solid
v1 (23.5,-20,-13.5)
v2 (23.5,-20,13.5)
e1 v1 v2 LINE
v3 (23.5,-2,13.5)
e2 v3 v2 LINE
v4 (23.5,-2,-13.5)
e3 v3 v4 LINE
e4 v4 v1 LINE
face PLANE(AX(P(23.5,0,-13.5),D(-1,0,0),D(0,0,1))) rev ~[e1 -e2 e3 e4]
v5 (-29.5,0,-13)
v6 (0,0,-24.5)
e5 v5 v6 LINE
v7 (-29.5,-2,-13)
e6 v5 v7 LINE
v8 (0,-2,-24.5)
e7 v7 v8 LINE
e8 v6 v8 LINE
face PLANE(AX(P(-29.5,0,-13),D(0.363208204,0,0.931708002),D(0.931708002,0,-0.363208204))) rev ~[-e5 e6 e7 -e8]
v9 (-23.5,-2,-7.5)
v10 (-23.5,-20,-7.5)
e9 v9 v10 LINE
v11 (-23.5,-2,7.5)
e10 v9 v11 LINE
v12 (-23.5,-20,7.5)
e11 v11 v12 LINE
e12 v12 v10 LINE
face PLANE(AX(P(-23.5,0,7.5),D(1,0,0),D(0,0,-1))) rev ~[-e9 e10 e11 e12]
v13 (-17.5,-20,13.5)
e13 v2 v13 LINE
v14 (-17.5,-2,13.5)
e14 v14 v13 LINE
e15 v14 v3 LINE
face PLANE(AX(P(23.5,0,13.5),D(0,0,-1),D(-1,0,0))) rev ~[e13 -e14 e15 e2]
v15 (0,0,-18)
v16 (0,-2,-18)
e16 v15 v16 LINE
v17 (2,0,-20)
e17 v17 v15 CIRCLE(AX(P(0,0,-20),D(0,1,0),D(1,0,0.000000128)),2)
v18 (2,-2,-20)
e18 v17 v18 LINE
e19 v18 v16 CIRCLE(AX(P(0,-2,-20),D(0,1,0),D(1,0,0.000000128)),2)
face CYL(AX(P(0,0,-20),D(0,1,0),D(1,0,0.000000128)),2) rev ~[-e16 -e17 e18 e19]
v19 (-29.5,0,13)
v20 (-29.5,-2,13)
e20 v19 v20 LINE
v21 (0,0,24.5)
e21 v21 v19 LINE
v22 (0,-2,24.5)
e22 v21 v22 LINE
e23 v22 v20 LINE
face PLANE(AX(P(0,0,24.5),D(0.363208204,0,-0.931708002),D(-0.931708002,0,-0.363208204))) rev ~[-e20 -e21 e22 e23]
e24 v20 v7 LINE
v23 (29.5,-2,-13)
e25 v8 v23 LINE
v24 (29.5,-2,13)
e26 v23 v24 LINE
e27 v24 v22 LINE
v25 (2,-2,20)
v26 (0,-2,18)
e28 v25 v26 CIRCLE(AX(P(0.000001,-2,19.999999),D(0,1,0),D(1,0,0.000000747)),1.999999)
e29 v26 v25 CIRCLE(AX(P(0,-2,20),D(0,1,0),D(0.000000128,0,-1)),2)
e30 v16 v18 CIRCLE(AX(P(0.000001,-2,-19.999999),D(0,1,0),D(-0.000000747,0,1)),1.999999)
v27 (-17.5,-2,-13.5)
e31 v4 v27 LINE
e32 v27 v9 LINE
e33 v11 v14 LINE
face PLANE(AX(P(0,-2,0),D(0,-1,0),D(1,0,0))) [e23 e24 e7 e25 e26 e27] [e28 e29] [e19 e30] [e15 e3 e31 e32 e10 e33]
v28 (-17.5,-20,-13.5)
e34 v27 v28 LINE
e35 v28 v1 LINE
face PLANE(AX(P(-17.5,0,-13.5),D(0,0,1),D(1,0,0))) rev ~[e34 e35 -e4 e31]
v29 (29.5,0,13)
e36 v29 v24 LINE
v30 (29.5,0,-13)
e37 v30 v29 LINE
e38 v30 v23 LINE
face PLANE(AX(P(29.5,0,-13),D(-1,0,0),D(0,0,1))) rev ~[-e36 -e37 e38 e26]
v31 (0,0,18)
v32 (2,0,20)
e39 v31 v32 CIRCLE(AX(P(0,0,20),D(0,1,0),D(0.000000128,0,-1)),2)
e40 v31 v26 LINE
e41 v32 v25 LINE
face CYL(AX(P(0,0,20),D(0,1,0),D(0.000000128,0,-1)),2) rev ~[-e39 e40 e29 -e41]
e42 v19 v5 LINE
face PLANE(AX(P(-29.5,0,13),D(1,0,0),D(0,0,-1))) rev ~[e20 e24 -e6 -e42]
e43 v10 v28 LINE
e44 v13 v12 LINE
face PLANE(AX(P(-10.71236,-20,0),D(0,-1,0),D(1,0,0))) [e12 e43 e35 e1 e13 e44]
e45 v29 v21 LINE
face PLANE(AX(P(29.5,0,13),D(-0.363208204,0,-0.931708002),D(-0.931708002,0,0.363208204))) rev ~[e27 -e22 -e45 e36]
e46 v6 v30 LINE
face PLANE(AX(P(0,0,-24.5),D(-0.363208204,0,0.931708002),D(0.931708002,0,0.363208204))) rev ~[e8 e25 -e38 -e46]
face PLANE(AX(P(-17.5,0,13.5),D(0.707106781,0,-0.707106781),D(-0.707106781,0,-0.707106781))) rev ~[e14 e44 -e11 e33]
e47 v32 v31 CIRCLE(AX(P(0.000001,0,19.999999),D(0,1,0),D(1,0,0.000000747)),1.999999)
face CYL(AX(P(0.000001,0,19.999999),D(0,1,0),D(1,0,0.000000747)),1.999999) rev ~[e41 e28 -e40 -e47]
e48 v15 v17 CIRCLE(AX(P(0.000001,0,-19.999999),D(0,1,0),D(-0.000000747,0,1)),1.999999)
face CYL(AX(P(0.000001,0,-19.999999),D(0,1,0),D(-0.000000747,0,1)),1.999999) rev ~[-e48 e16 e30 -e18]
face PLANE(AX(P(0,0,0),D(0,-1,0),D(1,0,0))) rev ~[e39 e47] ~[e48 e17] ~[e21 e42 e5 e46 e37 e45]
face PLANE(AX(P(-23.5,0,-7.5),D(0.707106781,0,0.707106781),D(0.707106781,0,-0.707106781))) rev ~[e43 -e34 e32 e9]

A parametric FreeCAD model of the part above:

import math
import FreeCAD as App
import Part
import Sketcher

doc = App.newDocument("Part")
body = doc.addObject("PartDesign::Body", "Body")

# Sketch on XZ plane
sketch1 = body.newObject("Sketcher::SketchObject", "Sketch")
sketch1.AttachmentSupport = (doc.getObject("XZ_Plane"), [""])
sketch1.MapMode = "FlatFace"
sketch1.addGeometry([
    Part.LineSegment(App.Vector(0, 24.5, 0), App.Vector(-29.5, 13, 0)),  # 0
    Part.LineSegment(App.Vector(-29.5, 13, 0), App.Vector(-29.5, -13, 0)),  # 1
    Part.LineSegment(App.Vector(-29.5, -13, 0), App.Vector(0, -24.5, 0)),  # 2
    Part.LineSegment(App.Vector(0, -24.5, 0), App.Vector(29.5, -13, 0)),  # 3
    Part.LineSegment(App.Vector(29.5, -13, 0), App.Vector(29.5, 13, 0)),  # 4
    Part.LineSegment(App.Vector(29.5, 13, 0), App.Vector(0, 24.5, 0)),  # 5
    Part.ArcOfCircle(Part.Circle(App.Vector(0, -20, 0), App.Vector(0, 0, 1), 2), math.radians(0), math.radians(90)),  # 6
    Part.ArcOfCircle(Part.Circle(App.Vector(0, -20, 0), App.Vector(0, 0, 1), 2), math.radians(90), math.radians(360)),  # 7
    Part.ArcOfCircle(Part.Circle(App.Vector(0, 20, 0), App.Vector(0, 0, 1), 2), math.radians(-90), math.radians(0)),  # 8
    Part.ArcOfCircle(Part.Circle(App.Vector(0, 20, 0), App.Vector(0, 0, 1), 2), math.radians(0), math.radians(270)),  # 9
    Part.LineSegment(App.Vector(-23.5, 7.5, 0), App.Vector(-17.5, 13.5, 0)),  # 10
    Part.LineSegment(App.Vector(-17.5, 13.5, 0), App.Vector(23.5, 13.5, 0)),  # 11
    Part.LineSegment(App.Vector(23.5, 13.5, 0), App.Vector(23.5, -13.5, 0)),  # 12
    Part.LineSegment(App.Vector(23.5, -13.5, 0), App.Vector(-17.5, -13.5, 0)),  # 13
    Part.LineSegment(App.Vector(-17.5, -13.5, 0), App.Vector(-23.5, -7.5, 0)),  # 14
    Part.LineSegment(App.Vector(-23.5, -7.5, 0), App.Vector(-23.5, 7.5, 0)),  # 15
], False)
sketch1.addConstraint([
    Sketcher.Constraint("Coincident", 0, 2, 1, 1),
    Sketcher.Constraint("Coincident", 1, 2, 2, 1),
    Sketcher.Constraint("Coincident", 2, 2, 3, 1),
    Sketcher.Constraint("Coincident", 3, 2, 4, 1),
    Sketcher.Constraint("Coincident", 4, 2, 5, 1),
    Sketcher.Constraint("Coincident", 5, 2, 0, 1),
    Sketcher.Constraint("Tangent", 6, 1, 7, 2),
    Sketcher.Constraint("Coincident", 7, 1, 6, 2),
    Sketcher.Constraint("Tangent", 8, 1, 9, 2),
    Sketcher.Constraint("Coincident", 9, 1, 8, 2),
    Sketcher.Constraint("Coincident", 10, 2, 11, 1),
    Sketcher.Constraint("Coincident", 11, 2, 12, 1),
    Sketcher.Constraint("Coincident", 12, 2, 13, 1),
    Sketcher.Constraint("Coincident", 13, 2, 14, 1),
    Sketcher.Constraint("Coincident", 14, 2, 15, 1),
    Sketcher.Constraint("Coincident", 15, 2, 10, 1),
    Sketcher.Constraint("Vertical", 1),
    Sketcher.Constraint("Vertical", 4),
    Sketcher.Constraint("Horizontal", 11),
    Sketcher.Constraint("Vertical", 12),
    Sketcher.Constraint("Horizontal", 13),
    Sketcher.Constraint("Vertical", 15),
    Sketcher.Constraint("Equal", 7, 8),
    Sketcher.Constraint("Symmetric", 6, 3, 8, 3, -1, 1),
    Sketcher.Constraint("Symmetric", 0, 2, 3, 2, -1, 1),
    Sketcher.Constraint("Symmetric", 2, 2, 5, 2, -1, 1),
    Sketcher.Constraint("Symmetric", 6, 1, 9, 1, -1),
    Sketcher.Constraint("Symmetric", 10, 2, 13, 2, -1),
    Sketcher.Constraint("PointOnObject", 2, 2, -2),
    Sketcher.Constraint("PointOnObject", 7, 1, -2),
    Sketcher.Constraint("PointOnObject", 8, 1, -2),
    Sketcher.Constraint("Parallel", 2, 5),
    Sketcher.Constraint("Perpendicular", 10, 14),
    Sketcher.Constraint("Horizontal", 1, 2, 3, 2),
    Sketcher.Constraint("Horizontal", 7, 3, 6, 1),
    Sketcher.Constraint("Equal", 10, 14),
    Sketcher.Constraint("Radius", 6, 1.999999),
    Sketcher.Constraint("DistanceX", 11, 1, 11, 2, 41.0),
    Sketcher.Constraint("DistanceY", 1, 2, 1, 1, 26.0),
    Sketcher.Constraint("DistanceY", 12, 2, 12, 1, 27.0),
    Sketcher.Constraint("DistanceY", 15, 1, 15, 2, 15.0),
    Sketcher.Constraint("DistanceY", 6, 3, -1, 1, 19.999999),
    Sketcher.Constraint("DistanceX", 0, 2, 10, 2, 12.0),
    Sketcher.Constraint("DistanceX", 11, 2, 4, 2, 6.0),
    Sketcher.Constraint("DistanceY", 2, 2, -1, 1, 24.5),
])
pad1 = body.newObject("PartDesign::Pad", "Pad")
pad1.Profile = sketch1
pad1.Length = 2

# Sketch on XZ plane
sketch2 = body.newObject("Sketcher::SketchObject", "Sketch001")
sketch2.AttachmentSupport = (doc.getObject("XZ_Plane"), [""])
sketch2.MapMode = "FlatFace"
sketch2.addGeometry([
    Part.LineSegment(App.Vector(-18, 14, 0), App.Vector(-24, 8, 0)),  # 0
    Part.LineSegment(App.Vector(-24, 8, 0), App.Vector(-24, -8, 0)),  # 1
    Part.LineSegment(App.Vector(-24, -8, 0), App.Vector(-18, -14, 0)),  # 2
    Part.LineSegment(App.Vector(-18, -14, 0), App.Vector(24, -14, 0)),  # 3
    Part.LineSegment(App.Vector(24, -14, 0), App.Vector(24, 14, 0)),  # 4
    Part.LineSegment(App.Vector(24, 14, 0), App.Vector(-18, 14, 0)),  # 5
], False)
sketch2.addConstraint([
    Sketcher.Constraint("Coincident", 0, 2, 1, 1),
    Sketcher.Constraint("Coincident", 1, 2, 2, 1),
    Sketcher.Constraint("Coincident", 2, 2, 3, 1),
    Sketcher.Constraint("Coincident", 3, 2, 4, 1),
    Sketcher.Constraint("Coincident", 4, 2, 5, 1),
    Sketcher.Constraint("Coincident", 5, 2, 0, 1),
    Sketcher.Constraint("Vertical", 1),
    Sketcher.Constraint("Horizontal", 3),
    Sketcher.Constraint("Vertical", 4),
    Sketcher.Constraint("Horizontal", 5),
    Sketcher.Constraint("Symmetric", 2, 2, 5, 2, -1),
    Sketcher.Constraint("Perpendicular", 0, 2),
    Sketcher.Constraint("Equal", 0, 2),
    Sketcher.Constraint("DistanceX", 3, 1, 3, 2, 41.0),
    Sketcher.Constraint("DistanceY", 1, 2, 1, 1, 15.0),
    Sketcher.Constraint("DistanceY", 4, 1, 4, 2, 27.0),
    Sketcher.Constraint("DistanceX", 0, 2, -1, 1, 23.5),
])
pad2 = body.newObject("PartDesign::Pad", "Pad001")
pad2.Profile = sketch2
pad2.Length = 20

doc.recompute()
